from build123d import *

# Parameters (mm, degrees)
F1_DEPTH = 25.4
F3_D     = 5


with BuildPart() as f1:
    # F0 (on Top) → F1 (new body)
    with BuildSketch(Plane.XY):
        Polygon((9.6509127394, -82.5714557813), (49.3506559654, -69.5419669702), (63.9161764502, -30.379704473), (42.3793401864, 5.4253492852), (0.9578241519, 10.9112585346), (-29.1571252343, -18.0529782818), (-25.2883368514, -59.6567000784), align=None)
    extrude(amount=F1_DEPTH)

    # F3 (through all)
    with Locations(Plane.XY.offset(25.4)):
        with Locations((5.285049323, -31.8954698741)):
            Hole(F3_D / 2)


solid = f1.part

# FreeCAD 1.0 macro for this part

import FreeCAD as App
import Part
import Sketcher
Q = App.Units.Quantity

doc = App.newDocument("Part")
body = doc.addObject("PartDesign::Body", "Body")

sketch1 = body.newObject("Sketcher::SketchObject", "Sketch")
sketch1.AttachmentSupport = (doc.getObject("XY_Plane"), [""])
sketch1.MapMode = "FlatFace"
sketch1.addGeometry(Part.LineSegment(App.Vector(10, -83, 0), App.Vector(49, -70, 0)), False)
sketch1.addGeometry(Part.LineSegment(App.Vector(49, -70, 0), App.Vector(64, -30, 0)), False)
sketch1.addGeometry(Part.LineSegment(App.Vector(64, -30, 0), App.Vector(42, 5, 0)), False)
sketch1.addGeometry(Part.LineSegment(App.Vector(42, 5, 0), App.Vector(1, 11, 0)), False)
sketch1.addGeometry(Part.LineSegment(App.Vector(1, 11, 0), App.Vector(-29, -18, 0)), False)
sketch1.addGeometry(Part.LineSegment(App.Vector(-29, -18, 0), App.Vector(-25, -60, 0)), False)
sketch1.addGeometry(Part.LineSegment(App.Vector(-25, -60, 0), App.Vector(10, -83, 0)), False)
sketch1.addConstraint(Sketcher.Constraint("Coincident", 0, 2, 1, 1))
sketch1.addConstraint(Sketcher.Constraint("Coincident", 1, 2, 2, 1))
sketch1.addConstraint(Sketcher.Constraint("Coincident", 2, 2, 3, 1))
sketch1.addConstraint(Sketcher.Constraint("Coincident", 3, 2, 4, 1))
sketch1.addConstraint(Sketcher.Constraint("Coincident", 4, 2, 5, 1))
sketch1.addConstraint(Sketcher.Constraint("Coincident", 5, 2, 6, 1))
sketch1.addConstraint(Sketcher.Constraint("Coincident", 6, 2, 0, 1))
sketch1.addConstraint(Sketcher.Constraint("Equal", 0, 1))
sketch1.addConstraint(Sketcher.Constraint("Equal", 1, 2))
sketch1.addConstraint(Sketcher.Constraint("Equal", 2, 3))
sketch1.addConstraint(Sketcher.Constraint("Equal", 3, 4))
sketch1.addConstraint(Sketcher.Constraint("Equal", 4, 5))
sketch1.addConstraint(Sketcher.Constraint("Equal", 5, 6))
sketch1.addConstraint(Sketcher.Constraint("DistanceY", 5, 2, -1, 1, Q("59.6567 mm")))
sketch1.addConstraint(Sketcher.Constraint("DistanceX", 4, 2, 1, 2, Q("93.073302 mm")))
sketch1.addConstraint(Sketcher.Constraint("DistanceX", -1, 1, 2, 2, Q("42.37934 mm")))
sketch1.addConstraint(Sketcher.Constraint("DistanceY", -1, 1, 2, 2, Q("5.425349 mm")))
sketch1.addConstraint(Sketcher.Constraint("DistanceY", -1, 1, 3, 2, Q("10.911259 mm")))
sketch1.addConstraint(Sketcher.Constraint("DistanceY", 4, 2, -1, 1, Q("18.052978 mm")))
sketch1.addConstraint(Sketcher.Constraint("DistanceX", 0, 2, 1, 2, Q("14.56552 mm")))
sketch1.addConstraint(Sketcher.Constraint("DistanceX", 3, 2, 0, 2, Q("48.392832 mm")))
pad1 = body.newObject("PartDesign::Pad", "Pad")
pad1.Profile = sketch1
pad1.Length = 25.4

sketch2 = body.newObject("Sketcher::SketchObject", "Sketch001")
sketch2.AttachmentSupport = (doc.getObject("XY_Plane"), [""])
sketch2.MapMode = "FlatFace"
sketch2.AttachmentOffset = App.Placement(App.Vector(0, 0, 25.4), App.Rotation())
sketch2.addGeometry(Part.Circle(App.Vector(5.3, -31.9, 0), App.Vector(0, 0, 1), 2.5), False)
sketch2.addConstraint(Sketcher.Constraint("Diameter", 0, Q("5 mm")))
sketch2.addConstraint(Sketcher.Constraint("DistanceX", -1, 1, 0, 3, Q("5.285049 mm")))
sketch2.addConstraint(Sketcher.Constraint("DistanceY", 0, 3, -1, 1, Q("31.89547 mm")))
doc.recompute()
hole = body.newObject("PartDesign::Hole", "Hole")
hole.Profile = sketch2
hole.ThreadType = "None"
hole.Diameter = 5
hole.DepthType = "ThroughAll"

doc.recompute()
